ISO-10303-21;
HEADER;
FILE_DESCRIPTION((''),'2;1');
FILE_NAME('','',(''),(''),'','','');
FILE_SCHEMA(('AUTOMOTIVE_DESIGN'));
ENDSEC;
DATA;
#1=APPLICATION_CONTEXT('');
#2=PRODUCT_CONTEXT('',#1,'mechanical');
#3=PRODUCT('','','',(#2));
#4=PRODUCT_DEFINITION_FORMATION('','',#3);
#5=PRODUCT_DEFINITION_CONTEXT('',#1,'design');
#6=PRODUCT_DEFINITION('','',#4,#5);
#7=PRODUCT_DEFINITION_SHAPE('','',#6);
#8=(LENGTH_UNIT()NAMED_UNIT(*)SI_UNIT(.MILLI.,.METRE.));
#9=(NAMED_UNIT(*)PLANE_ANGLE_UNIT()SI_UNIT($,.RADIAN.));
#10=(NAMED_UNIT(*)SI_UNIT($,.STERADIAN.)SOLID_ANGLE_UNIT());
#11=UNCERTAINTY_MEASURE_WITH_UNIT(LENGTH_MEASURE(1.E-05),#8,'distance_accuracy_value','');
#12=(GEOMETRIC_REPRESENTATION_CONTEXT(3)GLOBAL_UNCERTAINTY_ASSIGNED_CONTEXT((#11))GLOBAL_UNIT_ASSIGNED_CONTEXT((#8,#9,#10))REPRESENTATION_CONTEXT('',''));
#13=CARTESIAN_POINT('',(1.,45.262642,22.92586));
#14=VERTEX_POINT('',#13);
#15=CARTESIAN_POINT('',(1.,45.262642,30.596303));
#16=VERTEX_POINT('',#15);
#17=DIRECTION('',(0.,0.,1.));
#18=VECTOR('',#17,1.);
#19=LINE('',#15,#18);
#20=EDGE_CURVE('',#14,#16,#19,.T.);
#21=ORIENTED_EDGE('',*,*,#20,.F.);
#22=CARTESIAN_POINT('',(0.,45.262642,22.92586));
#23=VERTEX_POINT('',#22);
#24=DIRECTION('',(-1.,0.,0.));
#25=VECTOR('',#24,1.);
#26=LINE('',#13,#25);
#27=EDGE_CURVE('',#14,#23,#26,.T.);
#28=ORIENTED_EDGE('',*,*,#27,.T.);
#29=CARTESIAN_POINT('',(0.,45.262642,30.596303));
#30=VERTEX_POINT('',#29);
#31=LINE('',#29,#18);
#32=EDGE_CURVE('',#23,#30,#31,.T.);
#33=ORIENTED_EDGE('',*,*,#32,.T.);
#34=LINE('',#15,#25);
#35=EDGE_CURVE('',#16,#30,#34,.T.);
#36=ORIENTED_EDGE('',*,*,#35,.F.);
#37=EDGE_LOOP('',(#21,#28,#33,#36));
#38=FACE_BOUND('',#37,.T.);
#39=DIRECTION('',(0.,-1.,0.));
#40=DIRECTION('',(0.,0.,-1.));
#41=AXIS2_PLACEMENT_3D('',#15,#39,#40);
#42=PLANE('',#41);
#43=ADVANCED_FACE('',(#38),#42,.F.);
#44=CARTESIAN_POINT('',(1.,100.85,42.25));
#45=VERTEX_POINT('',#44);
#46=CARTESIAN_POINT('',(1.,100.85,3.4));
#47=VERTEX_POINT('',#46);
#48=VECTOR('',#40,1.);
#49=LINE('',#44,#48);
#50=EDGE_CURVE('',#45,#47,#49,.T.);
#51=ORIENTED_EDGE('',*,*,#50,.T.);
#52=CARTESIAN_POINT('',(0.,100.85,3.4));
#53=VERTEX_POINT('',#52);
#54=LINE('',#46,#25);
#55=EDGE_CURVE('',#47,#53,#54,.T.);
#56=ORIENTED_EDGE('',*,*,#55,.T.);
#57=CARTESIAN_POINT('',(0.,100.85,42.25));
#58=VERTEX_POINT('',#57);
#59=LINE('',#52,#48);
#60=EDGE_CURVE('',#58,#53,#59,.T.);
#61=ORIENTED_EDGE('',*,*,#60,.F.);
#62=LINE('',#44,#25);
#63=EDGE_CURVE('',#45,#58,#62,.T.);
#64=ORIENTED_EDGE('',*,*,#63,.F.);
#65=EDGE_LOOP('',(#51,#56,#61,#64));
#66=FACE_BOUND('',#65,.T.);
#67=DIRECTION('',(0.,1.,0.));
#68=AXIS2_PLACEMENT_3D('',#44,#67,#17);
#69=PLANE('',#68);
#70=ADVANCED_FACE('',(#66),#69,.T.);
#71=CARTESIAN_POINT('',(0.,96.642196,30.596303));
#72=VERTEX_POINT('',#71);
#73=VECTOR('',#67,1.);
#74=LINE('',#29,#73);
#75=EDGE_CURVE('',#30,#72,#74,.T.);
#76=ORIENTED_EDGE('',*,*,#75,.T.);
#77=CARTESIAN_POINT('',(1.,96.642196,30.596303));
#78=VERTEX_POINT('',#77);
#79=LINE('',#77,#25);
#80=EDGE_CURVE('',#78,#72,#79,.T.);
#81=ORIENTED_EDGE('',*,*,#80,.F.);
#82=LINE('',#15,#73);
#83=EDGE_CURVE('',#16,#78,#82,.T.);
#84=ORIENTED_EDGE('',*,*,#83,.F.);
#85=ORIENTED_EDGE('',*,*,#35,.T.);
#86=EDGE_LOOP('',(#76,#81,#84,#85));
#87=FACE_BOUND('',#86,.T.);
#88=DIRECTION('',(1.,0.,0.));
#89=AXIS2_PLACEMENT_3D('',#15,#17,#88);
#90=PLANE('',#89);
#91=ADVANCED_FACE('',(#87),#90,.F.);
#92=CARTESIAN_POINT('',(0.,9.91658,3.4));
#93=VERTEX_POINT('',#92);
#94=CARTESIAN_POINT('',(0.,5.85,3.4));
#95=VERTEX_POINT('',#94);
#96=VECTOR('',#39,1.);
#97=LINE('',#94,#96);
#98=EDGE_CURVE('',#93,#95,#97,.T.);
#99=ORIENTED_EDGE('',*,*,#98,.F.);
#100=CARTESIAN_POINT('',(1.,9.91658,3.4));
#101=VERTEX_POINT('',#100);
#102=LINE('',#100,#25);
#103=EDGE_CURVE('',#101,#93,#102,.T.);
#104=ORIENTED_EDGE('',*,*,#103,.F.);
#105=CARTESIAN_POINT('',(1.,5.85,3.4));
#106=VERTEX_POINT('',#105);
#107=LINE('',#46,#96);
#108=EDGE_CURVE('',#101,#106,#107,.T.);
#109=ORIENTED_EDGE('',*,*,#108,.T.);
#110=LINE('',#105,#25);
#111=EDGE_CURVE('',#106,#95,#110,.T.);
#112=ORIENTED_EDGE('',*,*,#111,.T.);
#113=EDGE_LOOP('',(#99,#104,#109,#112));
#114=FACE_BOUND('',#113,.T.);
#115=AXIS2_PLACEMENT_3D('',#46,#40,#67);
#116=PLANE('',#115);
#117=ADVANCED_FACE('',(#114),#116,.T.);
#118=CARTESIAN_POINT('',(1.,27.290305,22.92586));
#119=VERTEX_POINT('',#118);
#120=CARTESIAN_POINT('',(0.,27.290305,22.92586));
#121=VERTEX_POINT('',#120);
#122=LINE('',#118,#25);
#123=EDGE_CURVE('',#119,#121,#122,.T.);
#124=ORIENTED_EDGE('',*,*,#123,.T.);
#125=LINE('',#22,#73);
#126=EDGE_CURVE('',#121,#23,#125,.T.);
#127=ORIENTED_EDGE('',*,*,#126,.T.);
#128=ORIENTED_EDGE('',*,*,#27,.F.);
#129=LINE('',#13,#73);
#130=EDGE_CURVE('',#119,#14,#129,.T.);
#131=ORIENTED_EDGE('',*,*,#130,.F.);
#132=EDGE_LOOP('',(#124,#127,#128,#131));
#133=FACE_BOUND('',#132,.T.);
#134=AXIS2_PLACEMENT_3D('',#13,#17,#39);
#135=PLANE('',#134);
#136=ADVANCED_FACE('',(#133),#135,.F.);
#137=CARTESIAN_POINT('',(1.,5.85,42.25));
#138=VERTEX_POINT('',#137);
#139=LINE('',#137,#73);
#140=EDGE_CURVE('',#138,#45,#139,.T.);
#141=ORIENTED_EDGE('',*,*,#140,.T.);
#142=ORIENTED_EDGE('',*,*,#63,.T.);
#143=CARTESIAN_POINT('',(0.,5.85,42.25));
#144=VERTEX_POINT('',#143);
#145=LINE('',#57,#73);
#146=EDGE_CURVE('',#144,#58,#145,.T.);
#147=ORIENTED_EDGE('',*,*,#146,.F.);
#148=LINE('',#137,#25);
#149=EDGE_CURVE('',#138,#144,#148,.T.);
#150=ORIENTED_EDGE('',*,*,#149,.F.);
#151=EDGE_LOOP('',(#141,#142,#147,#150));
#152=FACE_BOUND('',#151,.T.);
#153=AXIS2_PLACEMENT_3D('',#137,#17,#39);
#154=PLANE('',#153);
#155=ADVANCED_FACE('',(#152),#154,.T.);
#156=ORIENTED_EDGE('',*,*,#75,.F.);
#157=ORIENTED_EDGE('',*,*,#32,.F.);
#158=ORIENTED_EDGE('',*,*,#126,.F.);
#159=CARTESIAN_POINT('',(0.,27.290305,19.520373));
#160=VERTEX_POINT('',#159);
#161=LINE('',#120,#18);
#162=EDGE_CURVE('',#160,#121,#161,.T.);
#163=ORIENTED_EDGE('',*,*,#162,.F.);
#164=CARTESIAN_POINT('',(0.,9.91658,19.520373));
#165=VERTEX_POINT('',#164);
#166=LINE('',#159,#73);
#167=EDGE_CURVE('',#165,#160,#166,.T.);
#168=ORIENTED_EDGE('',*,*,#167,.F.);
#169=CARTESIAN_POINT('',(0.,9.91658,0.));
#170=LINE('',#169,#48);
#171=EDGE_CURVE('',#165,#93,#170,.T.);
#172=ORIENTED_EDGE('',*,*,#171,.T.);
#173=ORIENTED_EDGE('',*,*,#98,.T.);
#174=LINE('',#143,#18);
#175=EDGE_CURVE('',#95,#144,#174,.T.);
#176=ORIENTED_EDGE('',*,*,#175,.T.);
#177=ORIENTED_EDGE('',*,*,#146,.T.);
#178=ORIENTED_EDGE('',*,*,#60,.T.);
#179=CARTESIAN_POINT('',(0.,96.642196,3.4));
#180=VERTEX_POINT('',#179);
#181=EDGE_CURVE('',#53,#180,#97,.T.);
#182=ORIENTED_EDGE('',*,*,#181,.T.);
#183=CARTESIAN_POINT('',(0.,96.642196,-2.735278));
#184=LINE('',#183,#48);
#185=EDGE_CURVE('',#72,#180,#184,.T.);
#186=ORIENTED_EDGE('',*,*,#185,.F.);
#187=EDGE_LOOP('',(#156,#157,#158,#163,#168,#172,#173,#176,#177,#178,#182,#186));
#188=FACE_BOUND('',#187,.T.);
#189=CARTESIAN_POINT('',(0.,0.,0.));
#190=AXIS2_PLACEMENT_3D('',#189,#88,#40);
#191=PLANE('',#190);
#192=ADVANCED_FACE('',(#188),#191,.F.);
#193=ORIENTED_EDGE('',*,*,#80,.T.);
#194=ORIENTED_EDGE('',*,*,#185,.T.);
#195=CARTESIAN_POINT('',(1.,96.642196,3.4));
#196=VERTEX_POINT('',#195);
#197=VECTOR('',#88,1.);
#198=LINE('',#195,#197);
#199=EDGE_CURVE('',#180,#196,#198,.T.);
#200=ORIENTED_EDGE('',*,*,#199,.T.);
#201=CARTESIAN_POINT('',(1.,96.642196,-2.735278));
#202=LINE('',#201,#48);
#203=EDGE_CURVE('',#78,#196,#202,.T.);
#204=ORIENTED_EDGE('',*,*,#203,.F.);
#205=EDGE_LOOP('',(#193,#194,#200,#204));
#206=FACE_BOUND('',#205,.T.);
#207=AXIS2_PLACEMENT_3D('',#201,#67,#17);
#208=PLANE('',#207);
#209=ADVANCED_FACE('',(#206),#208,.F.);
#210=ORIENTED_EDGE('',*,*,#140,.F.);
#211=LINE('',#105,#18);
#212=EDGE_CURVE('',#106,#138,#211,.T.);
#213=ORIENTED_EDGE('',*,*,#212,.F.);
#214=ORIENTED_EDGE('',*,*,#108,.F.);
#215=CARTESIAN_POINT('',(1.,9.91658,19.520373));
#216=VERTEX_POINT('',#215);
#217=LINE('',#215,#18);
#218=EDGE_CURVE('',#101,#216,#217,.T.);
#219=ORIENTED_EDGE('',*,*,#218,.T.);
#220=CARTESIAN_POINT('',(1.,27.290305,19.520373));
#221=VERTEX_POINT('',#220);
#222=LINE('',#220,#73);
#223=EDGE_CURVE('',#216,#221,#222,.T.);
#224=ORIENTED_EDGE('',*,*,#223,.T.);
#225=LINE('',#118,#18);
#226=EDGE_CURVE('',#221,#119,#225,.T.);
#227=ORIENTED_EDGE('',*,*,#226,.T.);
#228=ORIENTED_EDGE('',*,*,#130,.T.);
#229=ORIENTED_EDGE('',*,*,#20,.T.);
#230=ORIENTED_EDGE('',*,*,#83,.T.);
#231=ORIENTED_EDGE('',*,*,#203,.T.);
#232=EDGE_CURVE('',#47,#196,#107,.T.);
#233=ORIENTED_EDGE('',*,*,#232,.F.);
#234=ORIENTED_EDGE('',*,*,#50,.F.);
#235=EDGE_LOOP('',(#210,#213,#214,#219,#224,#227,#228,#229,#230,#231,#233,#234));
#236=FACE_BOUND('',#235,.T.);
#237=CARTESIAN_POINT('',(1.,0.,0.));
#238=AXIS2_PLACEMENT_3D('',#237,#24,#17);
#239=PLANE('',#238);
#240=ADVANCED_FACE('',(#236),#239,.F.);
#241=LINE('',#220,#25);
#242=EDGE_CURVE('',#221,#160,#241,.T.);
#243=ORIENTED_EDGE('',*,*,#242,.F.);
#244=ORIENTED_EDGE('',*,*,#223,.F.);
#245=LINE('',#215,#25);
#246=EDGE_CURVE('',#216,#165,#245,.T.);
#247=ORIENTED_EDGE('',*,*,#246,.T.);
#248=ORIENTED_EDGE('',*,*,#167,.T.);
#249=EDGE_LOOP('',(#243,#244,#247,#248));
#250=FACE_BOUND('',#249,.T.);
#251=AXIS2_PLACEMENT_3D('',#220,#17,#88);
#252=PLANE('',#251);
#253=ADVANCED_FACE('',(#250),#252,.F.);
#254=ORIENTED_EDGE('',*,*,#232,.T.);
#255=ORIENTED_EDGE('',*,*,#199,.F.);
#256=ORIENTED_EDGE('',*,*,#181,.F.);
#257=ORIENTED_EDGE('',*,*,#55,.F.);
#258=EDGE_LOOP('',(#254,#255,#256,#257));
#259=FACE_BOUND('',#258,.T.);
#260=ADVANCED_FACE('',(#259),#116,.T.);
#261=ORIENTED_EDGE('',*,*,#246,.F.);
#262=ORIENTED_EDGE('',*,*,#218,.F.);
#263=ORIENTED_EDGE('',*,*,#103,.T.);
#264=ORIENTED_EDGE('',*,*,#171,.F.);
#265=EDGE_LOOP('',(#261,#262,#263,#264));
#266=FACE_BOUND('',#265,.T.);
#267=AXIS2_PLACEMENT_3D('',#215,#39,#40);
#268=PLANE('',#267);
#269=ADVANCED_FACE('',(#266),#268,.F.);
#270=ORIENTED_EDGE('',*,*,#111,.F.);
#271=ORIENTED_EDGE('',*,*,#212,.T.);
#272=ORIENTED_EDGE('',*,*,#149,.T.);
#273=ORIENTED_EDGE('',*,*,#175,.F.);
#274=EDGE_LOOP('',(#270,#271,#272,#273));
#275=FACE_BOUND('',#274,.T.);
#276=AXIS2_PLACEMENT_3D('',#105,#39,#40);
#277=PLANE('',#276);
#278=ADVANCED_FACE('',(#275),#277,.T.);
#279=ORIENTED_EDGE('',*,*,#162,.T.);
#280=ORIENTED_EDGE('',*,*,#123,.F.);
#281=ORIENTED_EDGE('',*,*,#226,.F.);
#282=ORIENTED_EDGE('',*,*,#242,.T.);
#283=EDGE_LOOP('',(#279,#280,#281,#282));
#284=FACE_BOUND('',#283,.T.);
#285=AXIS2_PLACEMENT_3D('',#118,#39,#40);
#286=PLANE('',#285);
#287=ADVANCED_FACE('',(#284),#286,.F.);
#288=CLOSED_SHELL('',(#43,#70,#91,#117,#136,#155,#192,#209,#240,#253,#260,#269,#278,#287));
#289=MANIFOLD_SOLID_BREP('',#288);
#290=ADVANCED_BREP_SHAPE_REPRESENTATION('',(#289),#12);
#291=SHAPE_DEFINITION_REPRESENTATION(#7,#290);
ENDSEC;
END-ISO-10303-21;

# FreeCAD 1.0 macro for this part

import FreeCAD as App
import Part
import Sketcher
Q = App.Units.Quantity

doc = App.newDocument("Part")
params = doc.addObject("Spreadsheet::Sheet", "Params")
for row, (alias, value) in enumerate([
    ("sketch1_width", "95 mm"),
    ("sketch1_height", "38.85 mm"),
    ("pad1_length", "0.5 mm"),
    ("sketch2_width", "95 mm"),
    ("sketch2_height", "38.85 mm"),
    ("pad2_length", "0.5 mm"),
], start=1):
    params.set(f"A{row}", alias)
    params.set(f"B{row}", "=" + value)
    params.setAlias(f"B{row}", alias)

body = doc.addObject("PartDesign::Body", "Body")

sketch1 = doc.addObject("Sketcher::SketchObject", "Sketch")
body.addObject(sketch1)
sketch1.AttachmentSupport = (doc.YZ_Plane, [""])
sketch1.MapMode = "FlatFace"
sketch1.AttachmentOffset = App.Placement(App.Vector(0, 0, 0.5), App.Rotation())
sketch1.addGeometry([
    Part.LineSegment(App.Vector(101, 42, 0), App.Vector(101, 3, 0)),
    Part.LineSegment(App.Vector(101, 3, 0), App.Vector(6, 3, 0)),
    Part.LineSegment(App.Vector(6, 3, 0), App.Vector(6, 42, 0)),
    Part.LineSegment(App.Vector(6, 42, 0), App.Vector(101, 42, 0)),
], False)
sketch1.addConstraint([
    Sketcher.Constraint("Coincident", 0, 2, 1, 1),
    Sketcher.Constraint("Coincident", 1, 2, 2, 1),
    Sketcher.Constraint("Coincident", 2, 2, 3, 1),
    Sketcher.Constraint("Coincident", 3, 2, 0, 1),
    Sketcher.Constraint("Vertical", 0),
    Sketcher.Constraint("Horizontal", 1),
    Sketcher.Constraint("Vertical", 2),
    Sketcher.Constraint("Horizontal", 3),
    Sketcher.Constraint("DistanceX", 1, 2, 1, 1, Q("95 mm")),
    Sketcher.Constraint("DistanceY", 0, 2, 0, 1, Q("38.85 mm")),
    Sketcher.Constraint("DistanceY", -1, 1, 0, 2, Q("3.4 mm")),
    Sketcher.Constraint("DistanceX", -1, 1, 0, 2, Q("100.85 mm")),
])
sketch1.setExpression("Constraints[8]", "Params.sketch1_width")
sketch1.setExpression("Constraints[9]", "Params.sketch1_height")
pad1 = doc.addObject("PartDesign::Pad", "Pad")
body.addObject(pad1)
pad1.Profile = sketch1
pad1.setExpression("Length", "Params.pad1_length")

sketch2 = doc.addObject("Sketcher::SketchObject", "Sketch001")
body.addObject(sketch2)
sketch2.AttachmentSupport = (doc.YZ_Plane, [""])
sketch2.MapMode = "FlatFace"
sketch2.AttachmentOffset = App.Placement(App.Vector(0, 0, 0.5), App.Rotation())
sketch2.addGeometry([
    Part.LineSegment(App.Vector(101, 3, 0), App.Vector(6, 3, 0)),
    Part.LineSegment(App.Vector(6, 3, 0), App.Vector(6, 42, 0)),
    Part.LineSegment(App.Vector(6, 42, 0), App.Vector(101, 42, 0)),
    Part.LineSegment(App.Vector(101, 42, 0), App.Vector(101, 3, 0)),
], False)
sketch2.addConstraint([
    Sketcher.Constraint("Coincident", 0, 2, 1, 1),
    Sketcher.Constraint("Coincident", 1, 2, 2, 1),
    Sketcher.Constraint("Coincident", 2, 2, 3, 1),
    Sketcher.Constraint("Coincident", 3, 2, 0, 1),
    Sketcher.Constraint("Horizontal", 0),
    Sketcher.Constraint("Vertical", 1),
    Sketcher.Constraint("Horizontal", 2),
    Sketcher.Constraint("Vertical", 3),
    Sketcher.Constraint("DistanceX", 0, 2, 0, 1, Q("95 mm")),
    Sketcher.Constraint("DistanceY", 1, 1, 1, 2, Q("38.85 mm")),
    Sketcher.Constraint("DistanceY", -1, 1, 0, 2, Q("3.4 mm")),
    Sketcher.Constraint("DistanceX", -1, 1, 0, 2, Q("5.85 mm")),
])
sketch2.setExpression("Constraints[8]", "Params.sketch2_width")
sketch2.setExpression("Constraints[9]", "Params.sketch2_height")
pad2 = doc.addObject("PartDesign::Pad", "Pad001")
body.addObject(pad2)
pad2.Profile = sketch2
pad2.setExpression("Length", "Params.pad2_length")
pad2.Reversed = True

sketch3 = doc.addObject("Sketcher::SketchObject", "Sketch002")
body.addObject(sketch3)
sketch3.AttachmentSupport = (doc.YZ_Plane, [""])
sketch3.MapMode = "FlatFace"
sketch3.addGeometry([
    Part.LineSegment(App.Vector(27.3, 19.5, 0), App.Vector(27.3, 22.9, 0)),
    Part.LineSegment(App.Vector(27.3, 22.9, 0), App.Vector(45.3, 22.9, 0)),
    Part.LineSegment(App.Vector(45.3, 22.9, 0), App.Vector(45.3, 30.6, 0)),
    Part.LineSegment(App.Vector(45.3, 30.6, 0), App.Vector(96.6, 30.6, 0)),
    Part.LineSegment(App.Vector(96.6, 30.6, 0), App.Vector(96.6, -2.7, 0)),
    Part.LineSegment(App.Vector(96.6, -2.7, 0), App.Vector(9.9, -2.7, 0)),
    Part.LineSegment(App.Vector(9.9, -2.7, 0), App.Vector(9.9, 19.5, 0)),
    Part.LineSegment(App.Vector(9.9, 19.5, 0), App.Vector(27.3, 19.5, 0)),
], False)
sketch3.addConstraint([
    Sketcher.Constraint("Coincident", 0, 2, 1, 1),
    Sketcher.Constraint("Coincident", 1, 2, 2, 1),
    Sketcher.Constraint("Coincident", 2, 2, 3, 1),
    Sketcher.Constraint("Coincident", 3, 2, 4, 1),
    Sketcher.Constraint("Coincident", 4, 2, 5, 1),
    Sketcher.Constraint("Coincident", 5, 2, 6, 1),
    Sketcher.Constraint("Coincident", 6, 2, 7, 1),
    Sketcher.Constraint("Coincident", 7, 2, 0, 1),
    Sketcher.Constraint("Vertical", 0),
    Sketcher.Constraint("Horizontal", 1),
    Sketcher.Constraint("Vertical", 2),
    Sketcher.Constraint("Horizontal", 3),
    Sketcher.Constraint("Vertical", 4),
    Sketcher.Constraint("Horizontal", 5),
    Sketcher.Constraint("Vertical", 6),
    Sketcher.Constraint("Horizontal", 7),
    Sketcher.Constraint("DistanceY", 4, 2, 4, 1, Q("33.331582 mm")),
    Sketcher.Constraint("DistanceY", 6, 1, 6, 2, Q("22.255652 mm")),
    Sketcher.Constraint("DistanceX", 1, 1, 1, 2, Q("17.972337 mm")),
    Sketcher.Constraint("DistanceX", 3, 1, 3, 2, Q("51.379553 mm")),
    Sketcher.Constraint("DistanceX", 5, 2, 5, 1, Q("86.725616 mm")),
    Sketcher.Constraint("DistanceY", 0, 1, 0, 2, Q("3.405486 mm")),
    Sketcher.Constraint("DistanceY", -1, 1, 0, 2, Q("22.92586 mm")),
    Sketcher.Constraint("DistanceX", -1, 1, 5, 2, Q("9.91658 mm")),
])
pocket1 = doc.addObject("PartDesign::Pocket", "Pocket")
body.addObject(pocket1)
pocket1.Profile = sketch3
pocket1.Type = "ThroughAll"
pocket1.Reversed = True

doc.recompute()
